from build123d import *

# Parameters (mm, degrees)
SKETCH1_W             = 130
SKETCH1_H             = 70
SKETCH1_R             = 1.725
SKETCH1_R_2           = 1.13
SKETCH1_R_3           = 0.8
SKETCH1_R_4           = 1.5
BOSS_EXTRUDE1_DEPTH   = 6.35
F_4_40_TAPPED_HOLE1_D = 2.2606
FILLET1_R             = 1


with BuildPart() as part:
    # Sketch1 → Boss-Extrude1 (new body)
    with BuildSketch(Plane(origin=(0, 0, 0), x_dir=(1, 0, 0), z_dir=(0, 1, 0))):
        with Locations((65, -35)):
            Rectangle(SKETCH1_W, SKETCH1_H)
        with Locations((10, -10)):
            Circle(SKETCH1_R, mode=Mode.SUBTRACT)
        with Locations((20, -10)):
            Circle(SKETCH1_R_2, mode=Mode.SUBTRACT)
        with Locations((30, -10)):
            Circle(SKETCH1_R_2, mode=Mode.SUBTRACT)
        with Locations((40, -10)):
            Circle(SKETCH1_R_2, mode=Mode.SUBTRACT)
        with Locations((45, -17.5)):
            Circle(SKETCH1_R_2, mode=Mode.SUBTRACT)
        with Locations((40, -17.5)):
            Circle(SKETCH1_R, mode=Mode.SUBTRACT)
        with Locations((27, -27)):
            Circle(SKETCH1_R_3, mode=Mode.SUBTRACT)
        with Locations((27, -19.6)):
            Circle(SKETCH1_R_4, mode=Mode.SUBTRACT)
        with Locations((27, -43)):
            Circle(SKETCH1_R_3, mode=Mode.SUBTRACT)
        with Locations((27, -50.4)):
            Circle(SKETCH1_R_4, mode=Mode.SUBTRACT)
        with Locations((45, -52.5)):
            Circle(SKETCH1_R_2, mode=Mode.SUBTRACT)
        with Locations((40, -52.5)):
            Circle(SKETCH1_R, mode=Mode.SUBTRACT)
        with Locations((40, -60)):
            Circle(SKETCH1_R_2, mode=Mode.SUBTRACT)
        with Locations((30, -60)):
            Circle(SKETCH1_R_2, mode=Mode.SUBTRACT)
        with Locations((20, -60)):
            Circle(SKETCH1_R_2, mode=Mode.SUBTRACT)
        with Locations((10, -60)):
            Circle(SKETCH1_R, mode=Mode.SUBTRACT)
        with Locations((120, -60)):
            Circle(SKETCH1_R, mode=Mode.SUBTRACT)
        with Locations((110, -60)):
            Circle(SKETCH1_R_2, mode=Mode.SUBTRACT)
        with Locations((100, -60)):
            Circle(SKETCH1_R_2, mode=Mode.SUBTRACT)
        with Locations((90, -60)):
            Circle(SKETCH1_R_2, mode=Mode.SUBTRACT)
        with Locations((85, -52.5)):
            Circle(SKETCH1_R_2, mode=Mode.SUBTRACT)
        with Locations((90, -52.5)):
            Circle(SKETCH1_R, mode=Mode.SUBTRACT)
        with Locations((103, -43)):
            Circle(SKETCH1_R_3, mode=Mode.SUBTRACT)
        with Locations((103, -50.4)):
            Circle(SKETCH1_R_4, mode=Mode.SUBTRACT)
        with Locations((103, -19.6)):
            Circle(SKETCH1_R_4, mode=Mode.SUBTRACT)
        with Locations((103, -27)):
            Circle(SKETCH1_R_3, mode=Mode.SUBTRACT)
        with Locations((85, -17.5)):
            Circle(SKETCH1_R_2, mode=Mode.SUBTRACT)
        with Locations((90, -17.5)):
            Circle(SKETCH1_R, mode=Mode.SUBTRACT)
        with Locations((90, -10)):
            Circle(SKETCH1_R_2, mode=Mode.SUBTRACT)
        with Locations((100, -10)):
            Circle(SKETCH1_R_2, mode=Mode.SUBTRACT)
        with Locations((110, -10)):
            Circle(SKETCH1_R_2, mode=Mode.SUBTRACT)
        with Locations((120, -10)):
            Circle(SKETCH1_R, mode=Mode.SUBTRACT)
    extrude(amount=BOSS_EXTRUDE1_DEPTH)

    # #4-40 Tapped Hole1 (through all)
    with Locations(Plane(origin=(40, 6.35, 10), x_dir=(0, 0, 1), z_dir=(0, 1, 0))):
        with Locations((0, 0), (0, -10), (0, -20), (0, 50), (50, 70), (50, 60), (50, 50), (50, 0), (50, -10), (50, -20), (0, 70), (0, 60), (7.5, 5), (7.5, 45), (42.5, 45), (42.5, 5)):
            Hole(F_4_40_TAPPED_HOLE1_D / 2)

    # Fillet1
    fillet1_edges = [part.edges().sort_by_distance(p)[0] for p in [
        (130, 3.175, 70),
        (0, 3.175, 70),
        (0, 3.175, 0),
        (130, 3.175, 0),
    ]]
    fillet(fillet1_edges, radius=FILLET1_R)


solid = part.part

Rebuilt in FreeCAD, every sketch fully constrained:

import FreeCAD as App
import Part
import Sketcher


def edges_at(feature, points):
    """Names of the edges that pass closest to the given points."""
    edges = feature.Shape.Edges
    near = lambda p: min(range(len(edges)), key=lambda i: edges[i].distToShape(Part.Vertex(*p))[0])
    return sorted({f"Edge{near(p) + 1}" for p in points})

doc = App.newDocument("Part")
params = doc.addObject("Spreadsheet::Sheet", "Params")
for row, (alias, value) in enumerate([
    ("sketch1_diameter", "3 mm"),
    ("sketch1_diameter2", "1.6 mm"),
    ("sketch1_diameter3", "3.45 mm"),
    ("sketch1_diameter4", "2.26 mm"),
    ("sketch1_width", "130 mm"),
    ("pad1_length", "6.35 mm"),
    ("hole_diameter", "2.2606 mm"),
    ("fillet_radius", "1 mm"),
], start=1):
    params.set(f"A{row}", alias)
    params.set(f"B{row}", "=" + value)
    params.setAlias(f"B{row}", alias)

body = doc.addObject("PartDesign::Body", "Body")

# Sketch on XZ plane
sketch1 = body.newObject("Sketcher::SketchObject", "Sketch")
sketch1.AttachmentSupport = (doc.getObject("XZ_Plane"), [""])
sketch1.MapMode = "FlatFace"
sketch1.addGeometry([
    Part.LineSegment(App.Vector(0, 0, 0), App.Vector(0, 70, 0)),  # 0
    Part.LineSegment(App.Vector(0, 70, 0), App.Vector(130, 70, 0)),  # 1
    Part.LineSegment(App.Vector(130, 70, 0), App.Vector(130, 0, 0)),  # 2
    Part.LineSegment(App.Vector(130, 0, 0), App.Vector(0, 0, 0)),  # 3
    Part.Circle(App.Vector(10, 60, 0), App.Vector(0, 0, 1), 1.7),  # 4
    Part.Circle(App.Vector(20, 60, 0), App.Vector(0, 0, 1), 1.1),  # 5
    Part.Circle(App.Vector(30, 60, 0), App.Vector(0, 0, 1), 1.1),  # 6
    Part.Circle(App.Vector(27, 50.4, 0), App.Vector(0, 0, 1), 1.5),  # 7
    Part.Circle(App.Vector(40, 60, 0), App.Vector(0, 0, 1), 1.1),  # 8
    Part.Circle(App.Vector(40, 52.5, 0), App.Vector(0, 0, 1), 1.7),  # 9
    Part.Circle(App.Vector(45, 52.5, 0), App.Vector(0, 0, 1), 1.1),  # 10
    Part.Circle(App.Vector(27, 43, 0), App.Vector(0, 0, 1), 0.8),  # 11
    Part.Circle(App.Vector(90, 60, 0), App.Vector(0, 0, 1), 1.1),  # 12
    Part.Circle(App.Vector(85, 52.5, 0), App.Vector(0, 0, 1), 1.1),  # 13
    Part.Circle(App.Vector(90, 52.5, 0), App.Vector(0, 0, 1), 1.7),  # 14
    Part.Circle(App.Vector(100, 60, 0), App.Vector(0, 0, 1), 1.1),  # 15
    Part.Circle(App.Vector(110, 60, 0), App.Vector(0, 0, 1), 1.1),  # 16
    Part.Circle(App.Vector(120, 60, 0), App.Vector(0, 0, 1), 1.7),  # 17
    Part.Circle(App.Vector(103, 50.4, 0), App.Vector(0, 0, 1), 1.5),  # 18
    Part.Circle(App.Vector(103, 43, 0), App.Vector(0, 0, 1), 0.8),  # 19
    Part.Circle(App.Vector(27, 27, 0), App.Vector(0, 0, 1), 0.8),  # 20
    Part.Circle(App.Vector(27, 19.6, 0), App.Vector(0, 0, 1), 1.5),  # 21
    Part.Circle(App.Vector(10, 10, 0), App.Vector(0, 0, 1), 1.7),  # 22
    Part.Circle(App.Vector(20, 10, 0), App.Vector(0, 0, 1), 1.1),  # 23
    Part.Circle(App.Vector(30, 10, 0), App.Vector(0, 0, 1), 1.1),  # 24
    Part.Circle(App.Vector(40, 17.5, 0), App.Vector(0, 0, 1), 1.7),  # 25
    Part.Circle(App.Vector(45, 17.5, 0), App.Vector(0, 0, 1), 1.1),  # 26
    Part.Circle(App.Vector(40, 10, 0), App.Vector(0, 0, 1), 1.1),  # 27
    Part.Circle(App.Vector(103, 27, 0), App.Vector(0, 0, 1), 0.8),  # 28
    Part.Circle(App.Vector(85, 17.5, 0), App.Vector(0, 0, 1), 1.1),  # 29
    Part.Circle(App.Vector(90, 17.5, 0), App.Vector(0, 0, 1), 1.7),  # 30
    Part.Circle(App.Vector(90, 10, 0), App.Vector(0, 0, 1), 1.1),  # 31
    Part.Circle(App.Vector(103, 19.6, 0), App.Vector(0, 0, 1), 1.5),  # 32
    Part.Circle(App.Vector(100, 10, 0), App.Vector(0, 0, 1), 1.1),  # 33
    Part.Circle(App.Vector(110, 10, 0), App.Vector(0, 0, 1), 1.1),  # 34
    Part.Circle(App.Vector(120, 10, 0), App.Vector(0, 0, 1), 1.7),  # 35
], False)
sketch1.addConstraint([
    Sketcher.Constraint("Coincident", 0, 2, 1, 1),
    Sketcher.Constraint("Coincident", 1, 2, 2, 1),
    Sketcher.Constraint("Coincident", 2, 2, 3, 1),
    Sketcher.Constraint("Coincident", 3, 2, 0, 1),
    Sketcher.Constraint("Vertical", 0),
    Sketcher.Constraint("Horizontal", 1),
    Sketcher.Constraint("Vertical", 2),
    Sketcher.Constraint("Horizontal", 3),
    Sketcher.Constraint("Coincident", 3, 2, -1, 1),
    Sketcher.Constraint("Equal", 5, 6),
    Sketcher.Constraint("Equal", 6, 8),
    Sketcher.Constraint("Equal", 4, 9),
    Sketcher.Constraint("Equal", 8, 10),
    Sketcher.Constraint("Equal", 10, 12),
    Sketcher.Constraint("Equal", 12, 13),
    Sketcher.Constraint("Equal", 9, 14),
    Sketcher.Constraint("Equal", 13, 15),
    Sketcher.Constraint("Equal", 15, 16),
    Sketcher.Constraint("Equal", 14, 17),
    Sketcher.Constraint("Equal", 7, 18),
    Sketcher.Constraint("Equal", 11, 19),
    Sketcher.Constraint("Equal", 19, 20),
    Sketcher.Constraint("Equal", 18, 21),
    Sketcher.Constraint("Equal", 17, 22),
    Sketcher.Constraint("Equal", 16, 23),
    Sketcher.Constraint("Equal", 23, 24),
    Sketcher.Constraint("Equal", 22, 25),
    Sketcher.Constraint("Equal", 24, 26),
    Sketcher.Constraint("Equal", 26, 27),
    Sketcher.Constraint("Equal", 20, 28),
    Sketcher.Constraint("Equal", 27, 29),
    Sketcher.Constraint("Equal", 25, 30),
    Sketcher.Constraint("Equal", 29, 31),
    Sketcher.Constraint("Equal", 21, 32),
    Sketcher.Constraint("Equal", 31, 33),
    Sketcher.Constraint("Equal", 33, 34),
    Sketcher.Constraint("Equal", 30, 35),
    Sketcher.Constraint("Horizontal", 4, 3, 5, 3),
    Sketcher.Constraint("Horizontal", 5, 3, 6, 3),
    Sketcher.Constraint("Horizontal", 6, 3, 8, 3),
    Sketcher.Constraint("Horizontal", 9, 3, 10, 3),
    Sketcher.Constraint("Horizontal", 8, 3, 12, 3),
    Sketcher.Constraint("Horizontal", 10, 3, 13, 3),
    Sketcher.Constraint("Horizontal", 13, 3, 14, 3),
    Sketcher.Constraint("Horizontal", 12, 3, 15, 3),
    Sketcher.Constraint("Horizontal", 15, 3, 16, 3),
    Sketcher.Constraint("Horizontal", 16, 3, 17, 3),
    Sketcher.Constraint("Horizontal", 7, 3, 18, 3),
    Sketcher.Constraint("Horizontal", 11, 3, 19, 3),
    Sketcher.Constraint("Horizontal", 22, 3, 23, 3),
    Sketcher.Constraint("Horizontal", 23, 3, 24, 3),
    Sketcher.Constraint("Horizontal", 25, 3, 26, 3),
    Sketcher.Constraint("Horizontal", 24, 3, 27, 3),
    Sketcher.Constraint("Horizontal", 20, 3, 28, 3),
    Sketcher.Constraint("Horizontal", 26, 3, 29, 3),
    Sketcher.Constraint("Horizontal", 29, 3, 30, 3),
    Sketcher.Constraint("Horizontal", 27, 3, 31, 3),
    Sketcher.Constraint("Horizontal", 21, 3, 32, 3),
    Sketcher.Constraint("Horizontal", 31, 3, 33, 3),
    Sketcher.Constraint("Horizontal", 33, 3, 34, 3),
    Sketcher.Constraint("Horizontal", 34, 3, 35, 3),
    Sketcher.Constraint("Vertical", 8, 3, 9, 3),
    Sketcher.Constraint("Vertical", 7, 3, 11, 3),
    Sketcher.Constraint("Vertical", 12, 3, 14, 3),
    Sketcher.Constraint("Vertical", 18, 3, 19, 3),
    Sketcher.Constraint("Vertical", 11, 3, 20, 3),
    Sketcher.Constraint("Vertical", 20, 3, 21, 3),
    Sketcher.Constraint("Vertical", 4, 3, 22, 3),
    Sketcher.Constraint("Vertical", 5, 3, 23, 3),
    Sketcher.Constraint("Vertical", 6, 3, 24, 3),
    Sketcher.Constraint("Vertical", 9, 3, 25, 3),
    Sketcher.Constraint("Vertical", 10, 3, 26, 3),
    Sketcher.Constraint("Vertical", 25, 3, 27, 3),
    Sketcher.Constraint("Vertical", 19, 3, 28, 3),
    Sketcher.Constraint("Vertical", 13, 3, 29, 3),
    Sketcher.Constraint("Vertical", 14, 3, 30, 3),
    Sketcher.Constraint("Vertical", 30, 3, 31, 3),
    Sketcher.Constraint("Vertical", 28, 3, 32, 3),
    Sketcher.Constraint("Vertical", 15, 3, 33, 3),
    Sketcher.Constraint("Vertical", 16, 3, 34, 3),
    Sketcher.Constraint("Vertical", 17, 3, 35, 3),
    Sketcher.Constraint("Diameter", 7, 3.0),
    Sketcher.Constraint("Diameter", 11, 1.6),
    Sketcher.Constraint("Diameter", 4, 3.45),
    Sketcher.Constraint("Diameter", 5, 2.26),
    Sketcher.Constraint("DistanceX", 1, 1, 1, 2, 130.0),
    Sketcher.Constraint("DistanceY", 0, 1, 0, 2, 70.0),
    Sketcher.Constraint("DistanceX", -1, 1, 4, 3, 10.0),
    Sketcher.Constraint("DistanceY", -1, 1, 4, 3, 60.0),
    Sketcher.Constraint("DistanceX", -1, 1, 5, 3, 20.0),
    Sketcher.Constraint("DistanceX", -1, 1, 6, 3, 30.0),
    Sketcher.Constraint("DistanceX", -1, 1, 7, 3, 27.0),
    Sketcher.Constraint("DistanceX", -1, 1, 8, 3, 40.0),
    Sketcher.Constraint("DistanceX", -1, 1, 10, 3, 45.0),
    Sketcher.Constraint("DistanceY", -1, 1, 11, 3, 43.0),
    Sketcher.Constraint("DistanceX", -1, 1, 12, 3, 90.0),
    Sketcher.Constraint("DistanceX", -1, 1, 13, 3, 85.0),
    Sketcher.Constraint("DistanceX", -1, 1, 15, 3, 100.0),
    Sketcher.Constraint("DistanceX", -1, 1, 16, 3, 110.0),
    Sketcher.Constraint("DistanceX", -1, 1, 17, 3, 120.0),
    Sketcher.Constraint("DistanceX", -1, 1, 18, 3, 103.0),
    Sketcher.Constraint("DistanceY", -1, 1, 20, 3, 27.0),
    Sketcher.Constraint("DistanceY", -1, 1, 22, 3, 10.0),
    Sketcher.Constraint("DistanceY", 29, 3, 13, 3, 35.0),
    Sketcher.Constraint("DistanceY", -1, 1, 7, 3, 50.4),
    Sketcher.Constraint("DistanceY", -1, 1, 9, 3, 52.5),
    Sketcher.Constraint("DistanceY", -1, 1, 21, 3, 19.6),
])
sketch1.setExpression("Constraints[81]", "Params.sketch1_diameter")
sketch1.setExpression("Constraints[82]", "Params.sketch1_diameter2")
sketch1.setExpression("Constraints[83]", "Params.sketch1_diameter3")
sketch1.setExpression("Constraints[84]", "Params.sketch1_diameter4")
sketch1.setExpression("Constraints[85]", "Params.sketch1_width")
pad1 = body.newObject("PartDesign::Pad", "Pad")
pad1.Profile = sketch1
pad1.setExpression("Length", "Params.pad1_length")
pad1.Reversed = True

# Sketch on XZ plane
sketch2 = body.newObject("Sketcher::SketchObject", "Sketch001")
sketch2.AttachmentSupport = (doc.getObject("XZ_Plane"), [""])
sketch2.MapMode = "FlatFace"
sketch2.AttachmentOffset = App.Placement(App.Vector(0, 0, -6.35), App.Rotation())
sketch2.addGeometry([
    Part.Circle(App.Vector(40, 10, 0), App.Vector(0, 0, 1), 1.1),  # 0
    Part.Circle(App.Vector(30, 10, 0), App.Vector(0, 0, 1), 1.1),  # 1
    Part.Circle(App.Vector(20, 10, 0), App.Vector(0, 0, 1), 1.1),  # 2
    Part.Circle(App.Vector(90, 10, 0), App.Vector(0, 0, 1), 1.1),  # 3
    Part.Circle(App.Vector(110, 60, 0), App.Vector(0, 0, 1), 1.1),  # 4
    Part.Circle(App.Vector(100, 60, 0), App.Vector(0, 0, 1), 1.1),  # 5
    Part.Circle(App.Vector(90, 60, 0), App.Vector(0, 0, 1), 1.1),  # 6
    Part.Circle(App.Vector(40, 60, 0), App.Vector(0, 0, 1), 1.1),  # 7
    Part.Circle(App.Vector(30, 60, 0), App.Vector(0, 0, 1), 1.1),  # 8
    Part.Circle(App.Vector(20, 60, 0), App.Vector(0, 0, 1), 1.1),  # 9
    Part.Circle(App.Vector(110, 10, 0), App.Vector(0, 0, 1), 1.1),  # 10
    Part.Circle(App.Vector(100, 10, 0), App.Vector(0, 0, 1), 1.1),  # 11
    Part.Circle(App.Vector(45, 17.5, 0), App.Vector(0, 0, 1), 1.1),  # 12
    Part.Circle(App.Vector(85, 17.5, 0), App.Vector(0, 0, 1), 1.1),  # 13
    Part.Circle(App.Vector(85, 52.5, 0), App.Vector(0, 0, 1), 1.1),  # 14
    Part.Circle(App.Vector(45, 52.5, 0), App.Vector(0, 0, 1), 1.1),  # 15
], False)
sketch2.addConstraint([
    Sketcher.Constraint("Equal", 0, 1),
    Sketcher.Constraint("Equal", 1, 2),
    Sketcher.Constraint("Equal", 2, 3),
    Sketcher.Constraint("Equal", 3, 4),
    Sketcher.Constraint("Equal", 4, 5),
    Sketcher.Constraint("Equal", 5, 6),
    Sketcher.Constraint("Equal", 6, 7),
    Sketcher.Constraint("Equal", 7, 8),
    Sketcher.Constraint("Equal", 8, 9),
    Sketcher.Constraint("Equal", 9, 10),
    Sketcher.Constraint("Equal", 10, 11),
    Sketcher.Constraint("Equal", 11, 12),
    Sketcher.Constraint("Equal", 12, 13),
    Sketcher.Constraint("Equal", 13, 14),
    Sketcher.Constraint("Equal", 14, 15),
    Sketcher.Constraint("Horizontal", 0, 3, 1, 3),
    Sketcher.Constraint("Horizontal", 1, 3, 2, 3),
    Sketcher.Constraint("Horizontal", 2, 3, 3, 3),
    Sketcher.Constraint("Horizontal", 4, 3, 5, 3),
    Sketcher.Constraint("Horizontal", 5, 3, 6, 3),
    Sketcher.Constraint("Horizontal", 6, 3, 7, 3),
    Sketcher.Constraint("Horizontal", 7, 3, 8, 3),
    Sketcher.Constraint("Horizontal", 8, 3, 9, 3),
    Sketcher.Constraint("Horizontal", 3, 3, 10, 3),
    Sketcher.Constraint("Horizontal", 10, 3, 11, 3),
    Sketcher.Constraint("Horizontal", 12, 3, 13, 3),
    Sketcher.Constraint("Horizontal", 14, 3, 15, 3),
    Sketcher.Constraint("Vertical", 3, 3, 6, 3),
    Sketcher.Constraint("Vertical", 0, 3, 7, 3),
    Sketcher.Constraint("Vertical", 1, 3, 8, 3),
    Sketcher.Constraint("Vertical", 2, 3, 9, 3),
    Sketcher.Constraint("Vertical", 4, 3, 10, 3),
    Sketcher.Constraint("Vertical", 5, 3, 11, 3),
    Sketcher.Constraint("Vertical", 13, 3, 14, 3),
    Sketcher.Constraint("Vertical", 12, 3, 15, 3),
    Sketcher.Constraint("DistanceX", -1, 1, 0, 3, 40.0),
    Sketcher.Constraint("DistanceY", -1, 1, 0, 3, 10.0),
    Sketcher.Constraint("DistanceX", -1, 1, 1, 3, 30.0),
    Sketcher.Constraint("DistanceX", -1, 1, 2, 3, 20.0),
    Sketcher.Constraint("DistanceX", -1, 1, 3, 3, 90.0),
    Sketcher.Constraint("DistanceX", -1, 1, 4, 3, 110.0),
    Sketcher.Constraint("DistanceY", -1, 1, 4, 3, 60.0),
    Sketcher.Constraint("DistanceX", -1, 1, 5, 3, 100.0),
    Sketcher.Constraint("DistanceX", -1, 1, 12, 3, 45.0),
    Sketcher.Constraint("DistanceX", -1, 1, 13, 3, 85.0),
    Sketcher.Constraint("DistanceY", 13, 3, 14, 3, 35.0),
    Sketcher.Constraint("Diameter", 0, 2.2606),
    Sketcher.Constraint("DistanceY", -1, 1, 12, 3, 17.5),
])
doc.recompute()
hole = body.newObject("PartDesign::Hole", "Hole")
hole.Profile = sketch2
hole.ThreadType = "None"
hole.setExpression("Diameter", "Params.hole_diameter")
hole.DepthType = "ThroughAll"
hole.Reversed = True
doc.recompute()

fillet = body.newObject("PartDesign::Fillet", "Fillet")
fillet.Base = (hole, edges_at(hole, [
    (130, 3.175, 70),
    (0, 3.175, 70),
    (0, 3.175, 0),
    (130, 3.175, 0),
]))
fillet.setExpression("Radius", "Params.fillet_radius")

doc.recompute()
